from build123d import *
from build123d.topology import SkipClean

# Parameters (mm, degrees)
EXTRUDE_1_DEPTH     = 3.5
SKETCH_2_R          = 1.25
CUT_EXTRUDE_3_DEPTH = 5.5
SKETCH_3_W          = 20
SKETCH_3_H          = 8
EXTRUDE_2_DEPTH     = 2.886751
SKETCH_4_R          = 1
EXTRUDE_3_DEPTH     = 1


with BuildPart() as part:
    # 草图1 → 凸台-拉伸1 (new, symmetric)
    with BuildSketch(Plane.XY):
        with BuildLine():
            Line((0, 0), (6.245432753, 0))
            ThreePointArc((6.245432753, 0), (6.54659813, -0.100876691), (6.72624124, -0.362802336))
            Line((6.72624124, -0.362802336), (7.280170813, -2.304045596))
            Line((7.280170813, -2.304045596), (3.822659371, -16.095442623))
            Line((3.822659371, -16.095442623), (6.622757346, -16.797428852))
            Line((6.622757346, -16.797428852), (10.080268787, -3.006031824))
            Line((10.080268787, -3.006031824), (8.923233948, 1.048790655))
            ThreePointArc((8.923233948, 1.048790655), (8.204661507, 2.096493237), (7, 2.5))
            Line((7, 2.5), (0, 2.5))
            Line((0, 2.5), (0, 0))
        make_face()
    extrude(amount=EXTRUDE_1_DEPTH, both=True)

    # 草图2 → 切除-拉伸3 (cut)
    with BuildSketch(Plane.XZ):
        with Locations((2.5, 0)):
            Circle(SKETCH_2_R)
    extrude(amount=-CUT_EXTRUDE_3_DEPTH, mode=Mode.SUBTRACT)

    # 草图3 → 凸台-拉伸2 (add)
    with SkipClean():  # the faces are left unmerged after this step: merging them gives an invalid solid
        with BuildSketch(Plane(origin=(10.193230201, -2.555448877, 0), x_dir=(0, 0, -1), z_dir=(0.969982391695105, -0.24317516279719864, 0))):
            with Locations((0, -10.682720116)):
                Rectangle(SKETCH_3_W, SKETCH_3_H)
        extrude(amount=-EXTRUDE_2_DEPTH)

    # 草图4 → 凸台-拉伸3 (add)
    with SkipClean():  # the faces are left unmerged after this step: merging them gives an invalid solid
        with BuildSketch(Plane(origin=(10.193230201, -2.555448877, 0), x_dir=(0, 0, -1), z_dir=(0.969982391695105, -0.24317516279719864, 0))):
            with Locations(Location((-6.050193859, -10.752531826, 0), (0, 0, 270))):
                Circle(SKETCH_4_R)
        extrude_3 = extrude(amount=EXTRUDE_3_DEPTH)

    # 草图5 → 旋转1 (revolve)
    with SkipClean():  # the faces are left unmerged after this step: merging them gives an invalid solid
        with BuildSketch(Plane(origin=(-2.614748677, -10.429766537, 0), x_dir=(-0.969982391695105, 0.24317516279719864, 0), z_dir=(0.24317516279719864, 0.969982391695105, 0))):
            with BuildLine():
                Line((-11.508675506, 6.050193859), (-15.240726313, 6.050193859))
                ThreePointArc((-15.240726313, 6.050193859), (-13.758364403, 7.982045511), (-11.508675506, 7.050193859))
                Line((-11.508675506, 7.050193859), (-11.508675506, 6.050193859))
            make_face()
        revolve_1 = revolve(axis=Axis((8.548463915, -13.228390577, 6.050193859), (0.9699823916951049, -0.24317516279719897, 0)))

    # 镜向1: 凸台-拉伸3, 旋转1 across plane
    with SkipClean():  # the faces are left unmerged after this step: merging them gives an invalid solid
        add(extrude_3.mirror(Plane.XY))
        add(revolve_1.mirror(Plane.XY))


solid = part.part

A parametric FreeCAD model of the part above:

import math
import FreeCAD as App
import Part
import Sketcher

doc = App.newDocument("Part")
body = doc.addObject("PartDesign::Body", "Body")

# Sketch on XY plane
sketch1 = body.newObject("Sketcher::SketchObject", "Sketch")
sketch1.AttachmentSupport = (doc.getObject("XY_Plane"), [""])
sketch1.MapMode = "FlatFace"
sketch1.addGeometry(Part.LineSegment(App.Vector(0, 0, 0), App.Vector(6.245433, 0, 0)), False)
sketch1.addGeometry(Part.ArcOfCircle(Part.Circle(App.Vector(6.245433, -0.5, 0), App.Vector(0, 0, 1), 0.5), math.radians(15.925983), math.radians(90)), False)
sketch1.addGeometry(Part.LineSegment(App.Vector(6.726241, -0.362802, 0), App.Vector(7.280171, -2.304046, 0)), False)
sketch1.addGeometry(Part.LineSegment(App.Vector(7.280171, -2.304046, 0), App.Vector(3.822659, -16.095443, 0)), False)
sketch1.addGeometry(Part.LineSegment(App.Vector(3.822659, -16.095443, 0), App.Vector(6.622757, -16.797429, 0)), False)
sketch1.addGeometry(Part.LineSegment(App.Vector(6.622757, -16.797429, 0), App.Vector(10.080269, -3.006032, 0)), False)
sketch1.addGeometry(Part.LineSegment(App.Vector(10.080269, -3.006032, 0), App.Vector(8.923234, 1.048791, 0)), False)
sketch1.addGeometry(Part.ArcOfCircle(Part.Circle(App.Vector(7, 0.5, 0), App.Vector(0, 0, 1), 2), math.radians(15.925983), math.radians(90)), False)
sketch1.addGeometry(Part.LineSegment(App.Vector(7, 2.5, 0), App.Vector(0, 2.5, 0)), False)
sketch1.addGeometry(Part.LineSegment(App.Vector(0, 2.5, 0), App.Vector(0, 0, 0)), False)
sketch1.addConstraint(Sketcher.Constraint("Tangent", 0, 2, 1, 2))
sketch1.addConstraint(Sketcher.Constraint("Tangent", 1, 1, 2, 1))
sketch1.addConstraint(Sketcher.Constraint("Coincident", 2, 2, 3, 1))
sketch1.addConstraint(Sketcher.Constraint("Coincident", 3, 2, 4, 1))
sketch1.addConstraint(Sketcher.Constraint("Coincident", 4, 2, 5, 1))
sketch1.addConstraint(Sketcher.Constraint("Coincident", 5, 2, 6, 1))
sketch1.addConstraint(Sketcher.Constraint("Tangent", 6, 2, 7, 1))
sketch1.addConstraint(Sketcher.Constraint("Tangent", 7, 2, 8, 1))
sketch1.addConstraint(Sketcher.Constraint("Coincident", 8, 2, 9, 1))
sketch1.addConstraint(Sketcher.Constraint("Coincident", 9, 2, 0, 1))
sketch1.addConstraint(Sketcher.Constraint("Horizontal", 0))
sketch1.addConstraint(Sketcher.Constraint("Horizontal", 8))
sketch1.addConstraint(Sketcher.Constraint("Vertical", 9))
sketch1.addConstraint(Sketcher.Constraint("Coincident", 9, 2, -1, 1))
sketch1.addConstraint(Sketcher.Constraint("Perpendicular", 3, 4))
sketch1.addConstraint(Sketcher.Constraint("Perpendicular", 4, 5))
sketch1.addConstraint(Sketcher.Constraint("Parallel", 2, 6))
sketch1.addConstraint(Sketcher.Constraint("Equal", 3, 5))
sketch1.addConstraint(Sketcher.Constraint("Radius", 7, 2.0))
sketch1.addConstraint(Sketcher.Constraint("Radius", 1, 0.5))
sketch1.addConstraint(Sketcher.Constraint("DistanceX", 8, 2, 8, 1, 7.0))
sketch1.addConstraint(Sketcher.Constraint("DistanceY", 9, 2, 9, 1, 2.5))
sketch1.addConstraint(Sketcher.Constraint("DistanceX", 0, 2, 6, 2, 2.677801))
sketch1.addConstraint(Sketcher.Constraint("Distance", 2, 2.018728))
sketch1.addConstraint(Sketcher.Constraint("Distance", 4, 2.886751))
sketch1.addConstraint(Sketcher.Constraint("Distance", 6, 4.216671))
sketch1.addConstraint(Sketcher.Constraint("DistanceX", -1, 1, 3, 2, 3.822659))
pad1 = body.newObject("PartDesign::Pad", "Pad")
pad1.Profile = sketch1
pad1.Length = 7
pad1.Midplane = True

# Sketch on XZ plane
sketch2 = body.newObject("Sketcher::SketchObject", "Sketch001")
sketch2.AttachmentSupport = (doc.getObject("XZ_Plane"), [""])
sketch2.MapMode = "FlatFace"
sketch2.addGeometry(Part.Circle(App.Vector(2.5, 0, 0), App.Vector(0, 0, 1), 1.25), False)
sketch2.addConstraint(Sketcher.Constraint("PointOnObject", 0, 3, -1))
sketch2.addConstraint(Sketcher.Constraint("Diameter", 0, 2.5))
sketch2.addConstraint(Sketcher.Constraint("DistanceX", -1, 1, 0, 3, 2.5))
pocket1 = body.newObject("PartDesign::Pocket", "Pocket")
pocket1.Profile = sketch2
pocket1.Length = 5.5

# Sketch on an angled plane
sketch3 = body.newObject("Sketcher::SketchObject", "Sketch002")
sketch3.Placement = App.Placement(App.Vector(10.19323, -2.555449, 0), App.Rotation(App.Vector(0, 0, -1), App.Vector(0.243175163, 0.969982392, 0), App.Vector(0.969982392, -0.243175163, 0), "ZXY"))
sketch3.addGeometry(Part.LineSegment(App.Vector(-10, -6.68272, 0), App.Vector(-10, -14.68272, 0)), False)
sketch3.addGeometry(Part.LineSegment(App.Vector(-10, -14.68272, 0), App.Vector(10, -14.68272, 0)), False)
sketch3.addGeometry(Part.LineSegment(App.Vector(10, -14.68272, 0), App.Vector(10, -6.68272, 0)), False)
sketch3.addGeometry(Part.LineSegment(App.Vector(10, -6.68272, 0), App.Vector(-10, -6.68272, 0)), False)
sketch3.addConstraint(Sketcher.Constraint("Coincident", 0, 2, 1, 1))
sketch3.addConstraint(Sketcher.Constraint("Coincident", 1, 2, 2, 1))
sketch3.addConstraint(Sketcher.Constraint("Coincident", 2, 2, 3, 1))
sketch3.addConstraint(Sketcher.Constraint("Coincident", 3, 2, 0, 1))
sketch3.addConstraint(Sketcher.Constraint("Vertical", 0))
sketch3.addConstraint(Sketcher.Constraint("Horizontal", 1))
sketch3.addConstraint(Sketcher.Constraint("Vertical", 2))
sketch3.addConstraint(Sketcher.Constraint("Horizontal", 3))
sketch3.addConstraint(Sketcher.Constraint("DistanceX", 1, 1, 1, 2, 20.0))
sketch3.addConstraint(Sketcher.Constraint("DistanceY", 0, 2, 0, 1, 8.0))
sketch3.addConstraint(Sketcher.Constraint("DistanceX", 0, 2, -1, 1, 10.0))
sketch3.addConstraint(Sketcher.Constraint("DistanceY", 0, 2, -1, 1, 14.68272))
pad2 = body.newObject("PartDesign::Pad", "Pad001")
pad2.Profile = sketch3
pad2.Length = 2.886751
pad2.Reversed = True

# Sketch on an angled plane
sketch4 = body.newObject("Sketcher::SketchObject", "Sketch003")
sketch4.Placement = App.Placement(App.Vector(10.19323, -2.555449, 0), App.Rotation(App.Vector(0, 0, -1), App.Vector(0.243175163, 0.969982392, 0), App.Vector(0.969982392, -0.243175163, 0), "ZXY"))
sketch4.addGeometry(Part.Circle(App.Vector(-6.050194, -10.752532, 0), App.Vector(0, 0, 1), 1), False)
sketch4.addConstraint(Sketcher.Constraint("Diameter", 0, 2.0))
sketch4.addConstraint(Sketcher.Constraint("DistanceY", 0, 3, -1, 1, 10.752532))
sketch4.addConstraint(Sketcher.Constraint("DistanceX", 0, 3, -1, 1, 6.050194))
pad3 = body.newObject("PartDesign::Pad", "Pad002")
pad3.Profile = sketch4
pad3.Length = 1

# Sketch on an angled plane
sketch5 = body.newObject("Sketcher::SketchObject", "Sketch004")
sketch5.Placement = App.Placement(App.Vector(-2.614749, -10.429767, 0), App.Rotation(App.Vector(-0.969982392, 0.243175163, 0), App.Vector(0, 0, 1.000000001), App.Vector(0.243175163, 0.969982392, 0), "ZXY"))
sketch5.addGeometry(Part.LineSegment(App.Vector(-15.240726, 6.050194, 0), App.Vector(-11.508676, 6.050194, 0)), False)
sketch5.addGeometry(Part.LineSegment(App.Vector(-11.508676, 6.050194, 0), App.Vector(-11.508676, 7.050194, 0)), False)
sketch5.addGeometry(Part.ArcOfCircle(Part.Circle(App.Vector(-13.240726, 6.050194, 0), App.Vector(0, 0, 1), 2), math.radians(30), math.radians(180)), False)
sketch5.addGeometry(Part.LineSegment(App.Vector(-11.508676, 6.050194, 0), App.Vector(-15.240726, 6.050194, 0)), True)  # axis
sketch5.addConstraint(Sketcher.Constraint("Coincident", 0, 2, 1, 1))
sketch5.addConstraint(Sketcher.Constraint("Coincident", 1, 2, 2, 1))
sketch5.addConstraint(Sketcher.Constraint("Coincident", 2, 2, 0, 1))
sketch5.addConstraint(Sketcher.Constraint("Horizontal", 0))
sketch5.addConstraint(Sketcher.Constraint("Vertical", 1))
sketch5.addConstraint(Sketcher.Constraint("Horizontal", 3))
sketch5.addConstraint(Sketcher.Constraint("Coincident", 3, 1, 0, 2))
sketch5.addConstraint(Sketcher.Constraint("Horizontal", 2, 3, 0, 2))
sketch5.addConstraint(Sketcher.Constraint("Equal", 0, 3))
sketch5.addConstraint(Sketcher.Constraint("Radius", 2, 2.0))
sketch5.addConstraint(Sketcher.Constraint("DistanceY", 1, 1, 1, 2, 1.0))
sketch5.addConstraint(Sketcher.Constraint("DistanceX", 2, 3, -1, 1, 13.240726))
sketch5.addConstraint(Sketcher.Constraint("DistanceY", -1, 1, 2, 3, 6.050194))
revolution = body.newObject("PartDesign::Revolution", "Revolution")
revolution.Profile = sketch5
revolution.ReferenceAxis = (sketch5, ["Axis0"])
revolution.Angle = 360
doc.recompute()

mirrored = body.newObject("PartDesign::Mirrored", "Mirrored")
mirrored.Originals = [pad3, revolution]
mirrored.MirrorPlane = (doc.getObject("XY_Plane"), [""])
body.Tip = mirrored

doc.recompute()
